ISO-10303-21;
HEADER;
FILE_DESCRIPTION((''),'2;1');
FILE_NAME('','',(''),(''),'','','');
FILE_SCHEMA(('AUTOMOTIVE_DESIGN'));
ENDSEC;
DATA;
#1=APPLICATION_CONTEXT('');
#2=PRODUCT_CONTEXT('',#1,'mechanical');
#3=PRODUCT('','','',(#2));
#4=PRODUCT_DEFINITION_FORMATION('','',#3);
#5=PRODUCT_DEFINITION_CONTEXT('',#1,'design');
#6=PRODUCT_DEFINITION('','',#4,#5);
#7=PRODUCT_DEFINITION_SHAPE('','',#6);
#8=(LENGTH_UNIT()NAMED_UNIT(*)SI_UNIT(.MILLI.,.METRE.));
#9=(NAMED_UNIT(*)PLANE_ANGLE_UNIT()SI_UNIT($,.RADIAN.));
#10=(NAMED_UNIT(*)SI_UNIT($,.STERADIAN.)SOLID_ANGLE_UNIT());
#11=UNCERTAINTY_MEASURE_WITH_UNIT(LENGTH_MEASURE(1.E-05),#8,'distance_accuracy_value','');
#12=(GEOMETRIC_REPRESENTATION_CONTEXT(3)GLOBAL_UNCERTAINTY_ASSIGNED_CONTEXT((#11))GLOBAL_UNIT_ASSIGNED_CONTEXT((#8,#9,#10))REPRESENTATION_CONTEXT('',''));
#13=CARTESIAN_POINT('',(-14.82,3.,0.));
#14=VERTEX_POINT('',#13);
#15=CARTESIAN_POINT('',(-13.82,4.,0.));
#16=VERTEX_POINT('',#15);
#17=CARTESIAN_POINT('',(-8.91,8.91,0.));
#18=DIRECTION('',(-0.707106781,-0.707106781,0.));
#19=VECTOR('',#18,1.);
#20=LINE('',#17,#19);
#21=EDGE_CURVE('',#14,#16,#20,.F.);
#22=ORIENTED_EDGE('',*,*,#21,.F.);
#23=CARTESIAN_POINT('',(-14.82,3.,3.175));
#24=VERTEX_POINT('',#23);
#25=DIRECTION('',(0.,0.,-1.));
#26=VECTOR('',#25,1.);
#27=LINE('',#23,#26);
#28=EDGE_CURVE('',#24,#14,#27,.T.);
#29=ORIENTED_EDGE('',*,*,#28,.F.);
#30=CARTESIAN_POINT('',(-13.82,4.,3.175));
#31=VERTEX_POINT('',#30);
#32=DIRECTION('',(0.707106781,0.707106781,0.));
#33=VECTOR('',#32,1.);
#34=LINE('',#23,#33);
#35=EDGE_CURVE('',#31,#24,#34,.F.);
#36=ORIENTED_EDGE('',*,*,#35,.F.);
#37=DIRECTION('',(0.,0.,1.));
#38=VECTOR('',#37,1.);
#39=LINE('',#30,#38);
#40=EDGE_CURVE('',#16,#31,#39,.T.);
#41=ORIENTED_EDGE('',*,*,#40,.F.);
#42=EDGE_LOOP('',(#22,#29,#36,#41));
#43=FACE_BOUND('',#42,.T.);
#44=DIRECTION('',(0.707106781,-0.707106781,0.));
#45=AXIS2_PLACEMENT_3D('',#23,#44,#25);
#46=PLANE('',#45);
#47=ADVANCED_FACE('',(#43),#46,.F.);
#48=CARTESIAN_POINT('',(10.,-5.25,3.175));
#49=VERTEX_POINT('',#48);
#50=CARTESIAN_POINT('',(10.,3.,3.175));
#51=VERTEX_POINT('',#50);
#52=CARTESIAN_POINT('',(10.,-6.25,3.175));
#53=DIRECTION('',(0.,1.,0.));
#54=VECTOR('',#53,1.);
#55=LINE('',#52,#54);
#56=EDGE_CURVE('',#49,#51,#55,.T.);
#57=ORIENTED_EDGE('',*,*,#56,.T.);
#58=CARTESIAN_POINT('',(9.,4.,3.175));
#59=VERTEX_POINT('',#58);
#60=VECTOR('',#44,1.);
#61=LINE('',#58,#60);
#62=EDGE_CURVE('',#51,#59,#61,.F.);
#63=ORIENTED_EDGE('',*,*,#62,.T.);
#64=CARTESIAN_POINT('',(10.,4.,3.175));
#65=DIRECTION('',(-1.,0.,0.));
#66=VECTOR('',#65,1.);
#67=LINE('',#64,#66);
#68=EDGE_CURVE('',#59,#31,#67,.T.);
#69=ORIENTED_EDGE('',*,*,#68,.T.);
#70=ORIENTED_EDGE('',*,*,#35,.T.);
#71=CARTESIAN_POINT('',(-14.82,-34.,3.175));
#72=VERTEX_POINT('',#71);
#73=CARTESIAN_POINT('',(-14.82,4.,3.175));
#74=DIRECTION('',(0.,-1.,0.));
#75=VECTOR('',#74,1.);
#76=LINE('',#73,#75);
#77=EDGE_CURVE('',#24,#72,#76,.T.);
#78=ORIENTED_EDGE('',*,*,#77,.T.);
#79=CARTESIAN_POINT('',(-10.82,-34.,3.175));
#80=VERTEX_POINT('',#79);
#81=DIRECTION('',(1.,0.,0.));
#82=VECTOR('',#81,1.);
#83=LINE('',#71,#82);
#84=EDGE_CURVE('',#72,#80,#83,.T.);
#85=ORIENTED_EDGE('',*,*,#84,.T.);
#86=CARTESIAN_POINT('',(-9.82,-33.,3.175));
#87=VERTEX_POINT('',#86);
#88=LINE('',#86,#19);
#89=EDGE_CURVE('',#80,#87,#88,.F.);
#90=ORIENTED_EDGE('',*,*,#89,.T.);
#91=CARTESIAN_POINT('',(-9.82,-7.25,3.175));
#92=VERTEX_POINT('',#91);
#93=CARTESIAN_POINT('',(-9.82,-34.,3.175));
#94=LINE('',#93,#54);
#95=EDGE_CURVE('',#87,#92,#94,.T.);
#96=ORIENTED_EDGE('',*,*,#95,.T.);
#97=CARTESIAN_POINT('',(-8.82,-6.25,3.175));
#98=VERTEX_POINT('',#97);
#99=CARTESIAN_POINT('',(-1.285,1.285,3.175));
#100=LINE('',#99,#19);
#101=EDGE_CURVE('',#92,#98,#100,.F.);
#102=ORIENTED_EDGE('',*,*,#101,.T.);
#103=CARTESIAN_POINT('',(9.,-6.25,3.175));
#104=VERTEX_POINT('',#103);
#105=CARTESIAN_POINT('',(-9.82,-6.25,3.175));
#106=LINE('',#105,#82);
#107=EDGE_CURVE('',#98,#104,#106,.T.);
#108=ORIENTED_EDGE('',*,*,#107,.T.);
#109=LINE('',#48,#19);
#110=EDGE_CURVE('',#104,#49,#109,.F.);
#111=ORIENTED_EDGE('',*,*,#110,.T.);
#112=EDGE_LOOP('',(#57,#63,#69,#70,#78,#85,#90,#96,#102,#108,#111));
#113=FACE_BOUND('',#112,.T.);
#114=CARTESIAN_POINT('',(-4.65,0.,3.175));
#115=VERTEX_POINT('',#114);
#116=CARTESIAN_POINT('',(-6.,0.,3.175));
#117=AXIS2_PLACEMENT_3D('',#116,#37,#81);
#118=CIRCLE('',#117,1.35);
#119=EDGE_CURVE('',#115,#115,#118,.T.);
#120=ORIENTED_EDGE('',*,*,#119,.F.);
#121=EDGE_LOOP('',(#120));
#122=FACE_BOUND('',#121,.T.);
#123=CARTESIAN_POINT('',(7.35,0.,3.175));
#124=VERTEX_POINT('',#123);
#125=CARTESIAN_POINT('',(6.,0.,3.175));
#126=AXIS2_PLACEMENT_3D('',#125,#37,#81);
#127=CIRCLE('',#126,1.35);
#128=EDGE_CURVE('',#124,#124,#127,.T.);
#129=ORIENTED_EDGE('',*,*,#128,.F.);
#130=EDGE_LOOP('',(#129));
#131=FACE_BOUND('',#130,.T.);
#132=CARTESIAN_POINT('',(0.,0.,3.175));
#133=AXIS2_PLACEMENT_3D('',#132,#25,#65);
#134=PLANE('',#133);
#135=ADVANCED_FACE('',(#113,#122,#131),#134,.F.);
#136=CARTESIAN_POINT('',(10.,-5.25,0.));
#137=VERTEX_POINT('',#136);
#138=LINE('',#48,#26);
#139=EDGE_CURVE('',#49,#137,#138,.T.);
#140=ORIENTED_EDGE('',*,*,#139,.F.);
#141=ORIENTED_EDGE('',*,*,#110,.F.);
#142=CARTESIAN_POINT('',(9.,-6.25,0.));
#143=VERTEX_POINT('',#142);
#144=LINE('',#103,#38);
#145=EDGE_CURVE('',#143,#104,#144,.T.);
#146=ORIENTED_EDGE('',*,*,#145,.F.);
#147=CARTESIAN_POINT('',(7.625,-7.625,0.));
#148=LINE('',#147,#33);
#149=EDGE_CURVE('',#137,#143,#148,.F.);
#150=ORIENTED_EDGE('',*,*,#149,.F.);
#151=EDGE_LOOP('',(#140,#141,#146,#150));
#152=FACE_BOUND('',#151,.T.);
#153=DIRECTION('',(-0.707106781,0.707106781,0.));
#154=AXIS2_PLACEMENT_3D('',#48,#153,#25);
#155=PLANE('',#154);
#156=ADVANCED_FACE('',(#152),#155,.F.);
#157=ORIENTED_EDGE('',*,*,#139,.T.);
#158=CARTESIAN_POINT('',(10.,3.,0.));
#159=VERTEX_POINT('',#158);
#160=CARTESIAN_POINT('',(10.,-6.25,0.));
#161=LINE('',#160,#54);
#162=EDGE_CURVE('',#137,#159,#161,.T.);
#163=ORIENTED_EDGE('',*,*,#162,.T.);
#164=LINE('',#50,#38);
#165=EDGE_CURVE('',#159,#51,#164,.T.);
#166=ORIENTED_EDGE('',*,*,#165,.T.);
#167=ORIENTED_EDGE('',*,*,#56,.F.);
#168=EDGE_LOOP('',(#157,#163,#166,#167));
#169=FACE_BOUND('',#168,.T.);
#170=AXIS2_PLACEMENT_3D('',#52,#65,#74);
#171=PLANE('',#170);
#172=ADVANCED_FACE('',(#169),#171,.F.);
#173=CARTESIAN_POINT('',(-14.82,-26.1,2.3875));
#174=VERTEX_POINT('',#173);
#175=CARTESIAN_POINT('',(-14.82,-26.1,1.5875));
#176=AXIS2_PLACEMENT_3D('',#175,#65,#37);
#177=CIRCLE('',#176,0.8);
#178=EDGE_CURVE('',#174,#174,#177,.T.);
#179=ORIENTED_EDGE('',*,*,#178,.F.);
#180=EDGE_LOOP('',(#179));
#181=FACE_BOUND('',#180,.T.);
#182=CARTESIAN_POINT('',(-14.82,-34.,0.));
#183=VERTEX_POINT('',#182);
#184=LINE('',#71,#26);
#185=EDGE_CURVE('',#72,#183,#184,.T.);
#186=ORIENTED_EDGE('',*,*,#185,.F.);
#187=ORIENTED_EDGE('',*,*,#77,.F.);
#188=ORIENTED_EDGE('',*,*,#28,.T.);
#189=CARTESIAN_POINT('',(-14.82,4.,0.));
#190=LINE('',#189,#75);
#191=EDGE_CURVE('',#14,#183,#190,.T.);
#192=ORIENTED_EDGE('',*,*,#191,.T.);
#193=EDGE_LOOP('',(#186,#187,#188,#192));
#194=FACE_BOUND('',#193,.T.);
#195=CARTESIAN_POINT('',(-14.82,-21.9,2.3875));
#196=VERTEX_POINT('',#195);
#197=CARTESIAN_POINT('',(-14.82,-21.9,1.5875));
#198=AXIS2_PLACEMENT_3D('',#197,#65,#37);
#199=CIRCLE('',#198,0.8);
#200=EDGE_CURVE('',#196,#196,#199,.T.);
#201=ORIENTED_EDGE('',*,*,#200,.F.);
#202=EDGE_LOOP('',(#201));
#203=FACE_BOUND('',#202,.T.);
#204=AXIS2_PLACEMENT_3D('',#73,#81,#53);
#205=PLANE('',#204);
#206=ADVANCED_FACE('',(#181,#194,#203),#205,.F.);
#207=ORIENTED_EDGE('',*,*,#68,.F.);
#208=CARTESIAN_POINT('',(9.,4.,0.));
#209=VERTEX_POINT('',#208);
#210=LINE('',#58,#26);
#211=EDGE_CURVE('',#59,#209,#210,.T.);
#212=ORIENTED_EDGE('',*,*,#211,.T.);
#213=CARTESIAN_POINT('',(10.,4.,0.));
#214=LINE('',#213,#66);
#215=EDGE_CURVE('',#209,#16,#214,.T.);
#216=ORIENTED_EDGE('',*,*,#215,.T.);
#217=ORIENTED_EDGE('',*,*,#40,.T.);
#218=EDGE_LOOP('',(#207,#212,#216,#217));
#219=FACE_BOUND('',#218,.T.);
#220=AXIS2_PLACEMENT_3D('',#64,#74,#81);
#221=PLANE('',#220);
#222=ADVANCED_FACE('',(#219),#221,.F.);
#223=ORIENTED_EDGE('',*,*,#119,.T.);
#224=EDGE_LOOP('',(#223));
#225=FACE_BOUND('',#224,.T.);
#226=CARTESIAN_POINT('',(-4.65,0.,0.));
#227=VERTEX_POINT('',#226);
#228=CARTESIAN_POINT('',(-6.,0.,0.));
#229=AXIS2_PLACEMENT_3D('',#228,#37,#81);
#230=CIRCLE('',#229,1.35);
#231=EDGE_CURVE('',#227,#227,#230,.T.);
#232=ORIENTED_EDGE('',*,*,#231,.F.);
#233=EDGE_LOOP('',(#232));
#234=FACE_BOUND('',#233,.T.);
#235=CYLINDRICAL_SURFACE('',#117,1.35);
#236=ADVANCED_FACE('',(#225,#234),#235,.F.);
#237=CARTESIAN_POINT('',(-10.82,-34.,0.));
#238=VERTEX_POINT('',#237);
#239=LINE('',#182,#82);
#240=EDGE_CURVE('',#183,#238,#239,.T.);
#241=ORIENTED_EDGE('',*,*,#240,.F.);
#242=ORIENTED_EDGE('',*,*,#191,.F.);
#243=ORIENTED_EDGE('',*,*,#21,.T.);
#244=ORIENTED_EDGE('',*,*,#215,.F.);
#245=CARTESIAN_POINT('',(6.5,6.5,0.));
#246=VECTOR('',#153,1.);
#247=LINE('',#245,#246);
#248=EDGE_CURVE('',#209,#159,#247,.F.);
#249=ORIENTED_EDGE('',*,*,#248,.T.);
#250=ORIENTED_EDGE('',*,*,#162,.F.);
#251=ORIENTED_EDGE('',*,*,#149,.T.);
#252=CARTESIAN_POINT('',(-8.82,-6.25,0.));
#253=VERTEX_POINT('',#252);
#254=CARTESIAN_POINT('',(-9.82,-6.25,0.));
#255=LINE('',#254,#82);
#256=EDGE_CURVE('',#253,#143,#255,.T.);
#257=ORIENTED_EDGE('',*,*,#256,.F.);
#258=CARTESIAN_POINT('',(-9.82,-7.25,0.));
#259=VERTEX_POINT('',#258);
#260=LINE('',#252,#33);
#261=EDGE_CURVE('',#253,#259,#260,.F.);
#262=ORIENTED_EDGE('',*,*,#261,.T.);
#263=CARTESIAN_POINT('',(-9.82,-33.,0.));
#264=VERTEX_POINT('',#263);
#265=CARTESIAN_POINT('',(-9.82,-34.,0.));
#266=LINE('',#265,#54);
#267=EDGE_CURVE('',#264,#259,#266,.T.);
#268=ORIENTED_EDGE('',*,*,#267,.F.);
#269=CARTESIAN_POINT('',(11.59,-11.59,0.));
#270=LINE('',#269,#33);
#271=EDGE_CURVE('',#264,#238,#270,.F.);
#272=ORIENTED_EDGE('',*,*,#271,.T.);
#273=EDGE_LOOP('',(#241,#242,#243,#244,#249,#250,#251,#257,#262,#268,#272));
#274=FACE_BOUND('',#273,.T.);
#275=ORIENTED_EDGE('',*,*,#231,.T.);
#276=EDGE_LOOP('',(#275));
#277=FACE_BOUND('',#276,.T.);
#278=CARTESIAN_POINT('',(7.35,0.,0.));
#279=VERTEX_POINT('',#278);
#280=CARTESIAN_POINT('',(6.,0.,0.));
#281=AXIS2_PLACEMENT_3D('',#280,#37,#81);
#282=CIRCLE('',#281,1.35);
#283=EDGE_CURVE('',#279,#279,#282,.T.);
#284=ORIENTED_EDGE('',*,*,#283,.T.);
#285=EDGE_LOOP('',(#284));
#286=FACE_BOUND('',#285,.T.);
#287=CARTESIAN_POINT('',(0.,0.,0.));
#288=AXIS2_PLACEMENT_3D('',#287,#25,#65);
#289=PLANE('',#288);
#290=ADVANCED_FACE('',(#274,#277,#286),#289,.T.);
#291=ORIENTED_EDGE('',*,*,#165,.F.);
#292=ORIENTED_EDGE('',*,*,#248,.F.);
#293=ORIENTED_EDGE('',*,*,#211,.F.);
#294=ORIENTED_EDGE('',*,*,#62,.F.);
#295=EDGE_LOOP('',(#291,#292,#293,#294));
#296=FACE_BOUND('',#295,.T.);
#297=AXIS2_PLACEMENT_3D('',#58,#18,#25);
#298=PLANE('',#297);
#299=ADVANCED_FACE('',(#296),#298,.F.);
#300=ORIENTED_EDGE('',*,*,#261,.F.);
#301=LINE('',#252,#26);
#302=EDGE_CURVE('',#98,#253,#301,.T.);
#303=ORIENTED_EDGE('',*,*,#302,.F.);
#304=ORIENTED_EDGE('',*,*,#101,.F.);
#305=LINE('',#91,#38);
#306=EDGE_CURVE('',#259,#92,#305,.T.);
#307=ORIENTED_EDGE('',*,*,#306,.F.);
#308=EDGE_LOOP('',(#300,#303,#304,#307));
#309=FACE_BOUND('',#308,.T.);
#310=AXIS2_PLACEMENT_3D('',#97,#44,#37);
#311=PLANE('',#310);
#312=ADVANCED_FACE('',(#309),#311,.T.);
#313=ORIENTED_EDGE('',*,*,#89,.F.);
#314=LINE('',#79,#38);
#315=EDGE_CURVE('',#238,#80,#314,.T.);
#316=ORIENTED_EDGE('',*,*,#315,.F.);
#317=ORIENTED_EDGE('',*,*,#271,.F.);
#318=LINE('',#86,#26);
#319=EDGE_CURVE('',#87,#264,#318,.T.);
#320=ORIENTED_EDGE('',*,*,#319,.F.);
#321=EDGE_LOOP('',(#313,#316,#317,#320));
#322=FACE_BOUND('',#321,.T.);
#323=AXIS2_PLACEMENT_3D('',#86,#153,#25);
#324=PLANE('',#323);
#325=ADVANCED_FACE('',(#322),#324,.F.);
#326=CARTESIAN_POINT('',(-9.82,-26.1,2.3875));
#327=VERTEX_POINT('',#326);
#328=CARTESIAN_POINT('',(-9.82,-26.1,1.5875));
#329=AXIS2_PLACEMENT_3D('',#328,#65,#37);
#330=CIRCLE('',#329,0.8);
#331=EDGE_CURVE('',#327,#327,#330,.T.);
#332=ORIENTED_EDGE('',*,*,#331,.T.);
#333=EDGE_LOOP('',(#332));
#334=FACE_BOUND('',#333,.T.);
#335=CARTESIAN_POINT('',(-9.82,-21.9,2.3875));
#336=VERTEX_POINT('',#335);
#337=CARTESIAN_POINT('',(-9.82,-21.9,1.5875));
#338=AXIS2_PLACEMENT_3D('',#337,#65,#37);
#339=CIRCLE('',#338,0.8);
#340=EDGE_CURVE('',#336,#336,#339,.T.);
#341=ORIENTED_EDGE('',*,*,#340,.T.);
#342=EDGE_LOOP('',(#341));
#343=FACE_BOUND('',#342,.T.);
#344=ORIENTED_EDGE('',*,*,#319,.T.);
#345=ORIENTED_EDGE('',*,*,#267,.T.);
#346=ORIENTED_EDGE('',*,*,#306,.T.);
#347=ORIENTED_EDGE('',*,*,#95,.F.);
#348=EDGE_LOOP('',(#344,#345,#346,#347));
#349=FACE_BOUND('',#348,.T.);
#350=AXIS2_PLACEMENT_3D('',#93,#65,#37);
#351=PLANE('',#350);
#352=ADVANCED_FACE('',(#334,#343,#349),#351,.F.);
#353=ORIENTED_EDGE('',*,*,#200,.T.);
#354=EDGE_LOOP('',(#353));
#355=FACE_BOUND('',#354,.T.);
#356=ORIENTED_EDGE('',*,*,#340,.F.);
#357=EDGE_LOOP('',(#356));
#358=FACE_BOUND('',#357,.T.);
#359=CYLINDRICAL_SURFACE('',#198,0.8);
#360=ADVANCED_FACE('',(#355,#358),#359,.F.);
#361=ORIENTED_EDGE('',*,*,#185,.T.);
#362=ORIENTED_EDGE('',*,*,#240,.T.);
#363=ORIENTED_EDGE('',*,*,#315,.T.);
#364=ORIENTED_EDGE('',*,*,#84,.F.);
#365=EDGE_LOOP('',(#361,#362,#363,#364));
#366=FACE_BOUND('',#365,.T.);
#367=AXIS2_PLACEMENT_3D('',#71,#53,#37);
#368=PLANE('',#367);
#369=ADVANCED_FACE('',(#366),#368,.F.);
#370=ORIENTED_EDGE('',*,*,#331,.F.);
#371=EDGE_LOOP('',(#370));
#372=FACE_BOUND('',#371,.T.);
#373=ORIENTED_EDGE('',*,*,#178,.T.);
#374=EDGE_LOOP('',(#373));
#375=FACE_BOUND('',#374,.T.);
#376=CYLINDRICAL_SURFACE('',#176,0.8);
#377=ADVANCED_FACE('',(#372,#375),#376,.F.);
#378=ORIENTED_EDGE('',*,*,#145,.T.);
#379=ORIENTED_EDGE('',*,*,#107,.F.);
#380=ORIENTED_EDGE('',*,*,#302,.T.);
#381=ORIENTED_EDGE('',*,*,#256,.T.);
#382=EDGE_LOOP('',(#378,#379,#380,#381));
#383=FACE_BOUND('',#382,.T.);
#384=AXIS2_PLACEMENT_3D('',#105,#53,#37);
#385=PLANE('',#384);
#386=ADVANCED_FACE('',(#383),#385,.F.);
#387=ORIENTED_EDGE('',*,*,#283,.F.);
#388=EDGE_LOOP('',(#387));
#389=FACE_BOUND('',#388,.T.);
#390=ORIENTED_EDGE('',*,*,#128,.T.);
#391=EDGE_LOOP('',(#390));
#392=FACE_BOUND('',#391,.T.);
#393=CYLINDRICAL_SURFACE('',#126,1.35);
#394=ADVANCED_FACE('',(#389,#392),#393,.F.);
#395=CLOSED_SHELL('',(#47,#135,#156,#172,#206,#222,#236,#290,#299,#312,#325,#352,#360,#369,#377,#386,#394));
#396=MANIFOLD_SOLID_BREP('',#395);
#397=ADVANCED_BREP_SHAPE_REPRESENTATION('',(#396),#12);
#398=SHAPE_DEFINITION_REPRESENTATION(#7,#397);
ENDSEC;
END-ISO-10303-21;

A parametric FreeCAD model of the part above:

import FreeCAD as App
import Part
import Sketcher

V = App.Vector
Q = App.Units.Quantity


def edges_at(feature, points):
    """Names of the edges that pass closest to the given points."""
    edges = feature.Shape.Edges
    near = lambda p: min(range(len(edges)), key=lambda i: edges[i].distToShape(Part.Vertex(*p))[0])
    return sorted({f"Edge{near(p) + 1}" for p in points})


def add_polygon(sketch, points):
    """Adds a closed chain of lines whose ends are joined by coincident constraints."""
    first, n = sketch.GeometryCount, len(points)
    for a, b in zip(points, points[1:] + points[:1]):
        sketch.addGeometry(Part.LineSegment(App.Vector(*a, 0), App.Vector(*b, 0)), False)
    for i in range(n):
        sketch.addConstraint(Sketcher.Constraint("Coincident", first + i, 2, first + (i + 1) % n, 1))

doc = App.newDocument("Part")
body = doc.addObject("PartDesign::Body", "Body")

# Sketch on XY plane
sketch1 = body.newObject("Sketcher::SketchObject", "Sketch")
sketch1.AttachmentSupport = (doc.getObject("XY_Plane"), [""])
sketch1.MapMode = "FlatFace"
add_polygon(sketch1, [(-9.82, -6.25), (10, -6.25), (10, 4), (-14.82, 4), (-14.82, -34), (-9.82, -34)])  # lines 0-5
sketch1.addConstraint([
    Sketcher.Constraint("Horizontal", 0),
    Sketcher.Constraint("Vertical", 1),
    Sketcher.Constraint("Horizontal", 2),
    Sketcher.Constraint("Vertical", 3),
    Sketcher.Constraint("Horizontal", 4),
    Sketcher.Constraint("Vertical", 5),
    Sketcher.Constraint("DistanceX", 4, 1, 4, 2, Q("5 mm")),
    Sketcher.Constraint("DistanceY", 3, 2, 3, 1, Q("38 mm")),
    Sketcher.Constraint("DistanceX", -1, 1, 0, 2, Q("10 mm")),
    Sketcher.Constraint("DistanceY", -1, 1, 1, 2, Q("4 mm")),
    Sketcher.Constraint("DistanceX", 0, 1, 0, 2, Q("19.82 mm")),
    Sketcher.Constraint("DistanceY", 1, 1, 1, 2, Q("10.25 mm")),
])
pad1 = body.newObject("PartDesign::Pad", "Pad")
pad1.Profile = sketch1
pad1.Length = 3.175

# Sketch on XY plane
sketch2 = body.newObject("Sketcher::SketchObject", "Sketch001")
sketch2.AttachmentSupport = (doc.getObject("XY_Plane"), [""])
sketch2.MapMode = "FlatFace"
sketch2.AttachmentOffset = App.Placement(V(0, 0, 3.175), App.Rotation())
sketch2.addGeometry([
    Part.Circle(V(-6, 0, 0), V(0, 0, 1), 1.35),
    Part.Circle(V(6, 0, 0), V(0, 0, 1), 1.35),
], False)
sketch2.addConstraint([
    Sketcher.Constraint("Equal", 0, 1),
    Sketcher.Constraint("Symmetric", 0, 3, 1, 3, -1, 1),
    Sketcher.Constraint("PointOnObject", 0, 3, -1),
    Sketcher.Constraint("Diameter", 0, Q("2.7 mm")),
    Sketcher.Constraint("DistanceX", 0, 3, -1, 1, Q("6 mm")),
])
doc.recompute()
hole = body.newObject("PartDesign::Hole", "Hole")
hole.Profile = sketch2
hole.ThreadType = "None"
hole.Diameter = 2.7
hole.DepthType = "ThroughAll"
doc.recompute()

chamfer = body.newObject("PartDesign::Chamfer", "Chamfer")
chamfer.Base = (hole, edges_at(hole, [
    (-9.82, -34, 1.587),
    (-14.82, 4, 1.587),
    (10, 4, 1.587),
    (10, -6.25, 1.587),
    (-9.82, -6.25, 1.587),
]))
chamfer.Size = 1

# Sketch on YZ plane
sketch3 = body.newObject("Sketcher::SketchObject", "Sketch002")
sketch3.AttachmentSupport = (doc.getObject("YZ_Plane"), [""])
sketch3.MapMode = "FlatFace"
sketch3.AttachmentOffset = App.Placement(V(0, 0, -14.82), App.Rotation())
sketch3.addGeometry([
    Part.Circle(V(-21.9, 1.5875, 0), V(0, 0, 1), 0.8),
    Part.Circle(V(-26.1, 1.5875, 0), V(0, 0, 1), 0.8),
], False)
sketch3.addConstraint([
    Sketcher.Constraint("Equal", 0, 1),
    Sketcher.Constraint("Horizontal", 0, 3, 1, 3),
    Sketcher.Constraint("Diameter", 0, Q("1.6 mm")),
    Sketcher.Constraint("DistanceX", 0, 3, -1, 1, Q("21.9 mm")),
    Sketcher.Constraint("DistanceX", 1, 3, -1, 1, Q("26.1 mm")),
    Sketcher.Constraint("DistanceY", -1, 1, 0, 3, Q("1.5875 mm")),
])
doc.recompute()
hole2 = body.newObject("PartDesign::Hole", "Hole001")
hole2.Profile = sketch3
hole2.ThreadType = "None"
hole2.Diameter = 1.6
hole2.DepthType = "ThroughAll"
hole2.Reversed = True

doc.recompute()
